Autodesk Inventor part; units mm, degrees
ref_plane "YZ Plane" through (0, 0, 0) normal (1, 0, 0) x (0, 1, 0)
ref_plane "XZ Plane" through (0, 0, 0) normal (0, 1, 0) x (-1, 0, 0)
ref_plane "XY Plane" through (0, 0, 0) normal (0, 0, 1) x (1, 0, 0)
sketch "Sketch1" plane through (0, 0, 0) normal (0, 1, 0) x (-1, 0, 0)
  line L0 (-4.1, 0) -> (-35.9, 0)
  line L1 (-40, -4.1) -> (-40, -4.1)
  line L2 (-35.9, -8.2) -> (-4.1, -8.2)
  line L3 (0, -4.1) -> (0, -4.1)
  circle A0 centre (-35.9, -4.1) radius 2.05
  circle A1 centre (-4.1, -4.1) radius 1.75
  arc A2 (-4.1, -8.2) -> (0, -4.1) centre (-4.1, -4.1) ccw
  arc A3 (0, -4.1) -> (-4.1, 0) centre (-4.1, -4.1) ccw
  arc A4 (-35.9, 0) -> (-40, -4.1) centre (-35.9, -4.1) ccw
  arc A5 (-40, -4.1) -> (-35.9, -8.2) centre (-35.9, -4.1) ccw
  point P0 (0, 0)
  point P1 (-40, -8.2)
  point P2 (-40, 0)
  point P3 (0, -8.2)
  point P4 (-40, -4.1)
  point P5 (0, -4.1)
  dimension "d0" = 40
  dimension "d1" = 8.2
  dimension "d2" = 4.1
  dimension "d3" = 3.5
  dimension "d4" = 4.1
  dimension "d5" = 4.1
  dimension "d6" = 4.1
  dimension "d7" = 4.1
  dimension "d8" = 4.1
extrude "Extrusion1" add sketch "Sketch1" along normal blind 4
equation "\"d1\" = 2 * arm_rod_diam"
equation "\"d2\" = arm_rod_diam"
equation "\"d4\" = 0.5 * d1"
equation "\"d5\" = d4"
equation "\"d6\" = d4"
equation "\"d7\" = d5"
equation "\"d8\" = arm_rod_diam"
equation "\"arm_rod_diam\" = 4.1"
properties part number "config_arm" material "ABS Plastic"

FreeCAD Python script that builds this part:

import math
import FreeCAD as App
import Part
import Sketcher

V = App.Vector

doc = App.newDocument("Part")
params = doc.addObject("Spreadsheet::Sheet", "Params")
for row, (alias, value) in enumerate([
    ("sketch1_diameter", "4.1 mm"),
    ("sketch1_diameter2", "3.5 mm"),
    ("sketch1_radius", "4.1 mm"),
    ("sketch1_width", "31.8 mm"),
    ("pad1_length", "4 mm"),
], start=1):
    params.set(f"A{row}", alias)
    params.set(f"B{row}", "=" + value)
    params.setAlias(f"B{row}", alias)

body = doc.addObject("PartDesign::Body", "Body")

# Sketch on XZ plane
sketch1 = body.newObject("Sketcher::SketchObject", "Sketch")
sketch1.AttachmentSupport = (doc.getObject("XZ_Plane"), [""])
sketch1.MapMode = "FlatFace"
sketch1.addGeometry([
    Part.ArcOfCircle(Part.Circle(V(4.1, -4.1, 0), V(0, 0, 1), 4.1), math.radians(90), math.radians(270)),  # 0
    Part.LineSegment(V(4.1, 0, 0), V(35.9, 0, 0)),  # 1
    Part.ArcOfCircle(Part.Circle(V(35.9, -4.1, 0), V(0, 0, 1), 4.1), math.radians(-90), math.radians(90)),  # 2
    Part.LineSegment(V(35.9, -8.2, 0), V(4.1, -8.2, 0)),  # 3
    Part.Circle(V(35.9, -4.1, 0), V(0, 0, 1), 2),  # 4
    Part.Circle(V(4.1, -4.1, 0), V(0, 0, 1), 1.8),  # 5
], False)
sketch1.addConstraint([
    Sketcher.Constraint("Tangent", 0, 1, 1, 1),
    Sketcher.Constraint("Tangent", 1, 2, 2, 2),
    Sketcher.Constraint("Tangent", 2, 1, 3, 1),
    Sketcher.Constraint("Tangent", 3, 2, 0, 2),
    Sketcher.Constraint("Horizontal", 1),
    Sketcher.Constraint("Horizontal", 3),
    Sketcher.Constraint("Coincident", 4, 3, 2, 3),
    Sketcher.Constraint("Coincident", 5, 3, 0, 3),
    Sketcher.Constraint("PointOnObject", 0, 1, -1),
    Sketcher.Constraint("Diameter", 4, 4.1),
    Sketcher.Constraint("Diameter", 5, 3.5),
    Sketcher.Constraint("Radius", 0, 4.1),
    Sketcher.Constraint("DistanceX", -1, 1, 0, 3, 4.1),
    Sketcher.Constraint("DistanceX", 1, 1, 1, 2, 31.8),
])
sketch1.setExpression("Constraints[9]", "Params.sketch1_diameter")
sketch1.setExpression("Constraints[10]", "Params.sketch1_diameter2")
sketch1.setExpression("Constraints[11]", "Params.sketch1_radius")
sketch1.setExpression("Constraints[13]", "Params.sketch1_width")
pad1 = body.newObject("PartDesign::Pad", "Pad")
pad1.Profile = sketch1
pad1.setExpression("Length", "Params.pad1_length")
pad1.Reversed = True

doc.recompute()
